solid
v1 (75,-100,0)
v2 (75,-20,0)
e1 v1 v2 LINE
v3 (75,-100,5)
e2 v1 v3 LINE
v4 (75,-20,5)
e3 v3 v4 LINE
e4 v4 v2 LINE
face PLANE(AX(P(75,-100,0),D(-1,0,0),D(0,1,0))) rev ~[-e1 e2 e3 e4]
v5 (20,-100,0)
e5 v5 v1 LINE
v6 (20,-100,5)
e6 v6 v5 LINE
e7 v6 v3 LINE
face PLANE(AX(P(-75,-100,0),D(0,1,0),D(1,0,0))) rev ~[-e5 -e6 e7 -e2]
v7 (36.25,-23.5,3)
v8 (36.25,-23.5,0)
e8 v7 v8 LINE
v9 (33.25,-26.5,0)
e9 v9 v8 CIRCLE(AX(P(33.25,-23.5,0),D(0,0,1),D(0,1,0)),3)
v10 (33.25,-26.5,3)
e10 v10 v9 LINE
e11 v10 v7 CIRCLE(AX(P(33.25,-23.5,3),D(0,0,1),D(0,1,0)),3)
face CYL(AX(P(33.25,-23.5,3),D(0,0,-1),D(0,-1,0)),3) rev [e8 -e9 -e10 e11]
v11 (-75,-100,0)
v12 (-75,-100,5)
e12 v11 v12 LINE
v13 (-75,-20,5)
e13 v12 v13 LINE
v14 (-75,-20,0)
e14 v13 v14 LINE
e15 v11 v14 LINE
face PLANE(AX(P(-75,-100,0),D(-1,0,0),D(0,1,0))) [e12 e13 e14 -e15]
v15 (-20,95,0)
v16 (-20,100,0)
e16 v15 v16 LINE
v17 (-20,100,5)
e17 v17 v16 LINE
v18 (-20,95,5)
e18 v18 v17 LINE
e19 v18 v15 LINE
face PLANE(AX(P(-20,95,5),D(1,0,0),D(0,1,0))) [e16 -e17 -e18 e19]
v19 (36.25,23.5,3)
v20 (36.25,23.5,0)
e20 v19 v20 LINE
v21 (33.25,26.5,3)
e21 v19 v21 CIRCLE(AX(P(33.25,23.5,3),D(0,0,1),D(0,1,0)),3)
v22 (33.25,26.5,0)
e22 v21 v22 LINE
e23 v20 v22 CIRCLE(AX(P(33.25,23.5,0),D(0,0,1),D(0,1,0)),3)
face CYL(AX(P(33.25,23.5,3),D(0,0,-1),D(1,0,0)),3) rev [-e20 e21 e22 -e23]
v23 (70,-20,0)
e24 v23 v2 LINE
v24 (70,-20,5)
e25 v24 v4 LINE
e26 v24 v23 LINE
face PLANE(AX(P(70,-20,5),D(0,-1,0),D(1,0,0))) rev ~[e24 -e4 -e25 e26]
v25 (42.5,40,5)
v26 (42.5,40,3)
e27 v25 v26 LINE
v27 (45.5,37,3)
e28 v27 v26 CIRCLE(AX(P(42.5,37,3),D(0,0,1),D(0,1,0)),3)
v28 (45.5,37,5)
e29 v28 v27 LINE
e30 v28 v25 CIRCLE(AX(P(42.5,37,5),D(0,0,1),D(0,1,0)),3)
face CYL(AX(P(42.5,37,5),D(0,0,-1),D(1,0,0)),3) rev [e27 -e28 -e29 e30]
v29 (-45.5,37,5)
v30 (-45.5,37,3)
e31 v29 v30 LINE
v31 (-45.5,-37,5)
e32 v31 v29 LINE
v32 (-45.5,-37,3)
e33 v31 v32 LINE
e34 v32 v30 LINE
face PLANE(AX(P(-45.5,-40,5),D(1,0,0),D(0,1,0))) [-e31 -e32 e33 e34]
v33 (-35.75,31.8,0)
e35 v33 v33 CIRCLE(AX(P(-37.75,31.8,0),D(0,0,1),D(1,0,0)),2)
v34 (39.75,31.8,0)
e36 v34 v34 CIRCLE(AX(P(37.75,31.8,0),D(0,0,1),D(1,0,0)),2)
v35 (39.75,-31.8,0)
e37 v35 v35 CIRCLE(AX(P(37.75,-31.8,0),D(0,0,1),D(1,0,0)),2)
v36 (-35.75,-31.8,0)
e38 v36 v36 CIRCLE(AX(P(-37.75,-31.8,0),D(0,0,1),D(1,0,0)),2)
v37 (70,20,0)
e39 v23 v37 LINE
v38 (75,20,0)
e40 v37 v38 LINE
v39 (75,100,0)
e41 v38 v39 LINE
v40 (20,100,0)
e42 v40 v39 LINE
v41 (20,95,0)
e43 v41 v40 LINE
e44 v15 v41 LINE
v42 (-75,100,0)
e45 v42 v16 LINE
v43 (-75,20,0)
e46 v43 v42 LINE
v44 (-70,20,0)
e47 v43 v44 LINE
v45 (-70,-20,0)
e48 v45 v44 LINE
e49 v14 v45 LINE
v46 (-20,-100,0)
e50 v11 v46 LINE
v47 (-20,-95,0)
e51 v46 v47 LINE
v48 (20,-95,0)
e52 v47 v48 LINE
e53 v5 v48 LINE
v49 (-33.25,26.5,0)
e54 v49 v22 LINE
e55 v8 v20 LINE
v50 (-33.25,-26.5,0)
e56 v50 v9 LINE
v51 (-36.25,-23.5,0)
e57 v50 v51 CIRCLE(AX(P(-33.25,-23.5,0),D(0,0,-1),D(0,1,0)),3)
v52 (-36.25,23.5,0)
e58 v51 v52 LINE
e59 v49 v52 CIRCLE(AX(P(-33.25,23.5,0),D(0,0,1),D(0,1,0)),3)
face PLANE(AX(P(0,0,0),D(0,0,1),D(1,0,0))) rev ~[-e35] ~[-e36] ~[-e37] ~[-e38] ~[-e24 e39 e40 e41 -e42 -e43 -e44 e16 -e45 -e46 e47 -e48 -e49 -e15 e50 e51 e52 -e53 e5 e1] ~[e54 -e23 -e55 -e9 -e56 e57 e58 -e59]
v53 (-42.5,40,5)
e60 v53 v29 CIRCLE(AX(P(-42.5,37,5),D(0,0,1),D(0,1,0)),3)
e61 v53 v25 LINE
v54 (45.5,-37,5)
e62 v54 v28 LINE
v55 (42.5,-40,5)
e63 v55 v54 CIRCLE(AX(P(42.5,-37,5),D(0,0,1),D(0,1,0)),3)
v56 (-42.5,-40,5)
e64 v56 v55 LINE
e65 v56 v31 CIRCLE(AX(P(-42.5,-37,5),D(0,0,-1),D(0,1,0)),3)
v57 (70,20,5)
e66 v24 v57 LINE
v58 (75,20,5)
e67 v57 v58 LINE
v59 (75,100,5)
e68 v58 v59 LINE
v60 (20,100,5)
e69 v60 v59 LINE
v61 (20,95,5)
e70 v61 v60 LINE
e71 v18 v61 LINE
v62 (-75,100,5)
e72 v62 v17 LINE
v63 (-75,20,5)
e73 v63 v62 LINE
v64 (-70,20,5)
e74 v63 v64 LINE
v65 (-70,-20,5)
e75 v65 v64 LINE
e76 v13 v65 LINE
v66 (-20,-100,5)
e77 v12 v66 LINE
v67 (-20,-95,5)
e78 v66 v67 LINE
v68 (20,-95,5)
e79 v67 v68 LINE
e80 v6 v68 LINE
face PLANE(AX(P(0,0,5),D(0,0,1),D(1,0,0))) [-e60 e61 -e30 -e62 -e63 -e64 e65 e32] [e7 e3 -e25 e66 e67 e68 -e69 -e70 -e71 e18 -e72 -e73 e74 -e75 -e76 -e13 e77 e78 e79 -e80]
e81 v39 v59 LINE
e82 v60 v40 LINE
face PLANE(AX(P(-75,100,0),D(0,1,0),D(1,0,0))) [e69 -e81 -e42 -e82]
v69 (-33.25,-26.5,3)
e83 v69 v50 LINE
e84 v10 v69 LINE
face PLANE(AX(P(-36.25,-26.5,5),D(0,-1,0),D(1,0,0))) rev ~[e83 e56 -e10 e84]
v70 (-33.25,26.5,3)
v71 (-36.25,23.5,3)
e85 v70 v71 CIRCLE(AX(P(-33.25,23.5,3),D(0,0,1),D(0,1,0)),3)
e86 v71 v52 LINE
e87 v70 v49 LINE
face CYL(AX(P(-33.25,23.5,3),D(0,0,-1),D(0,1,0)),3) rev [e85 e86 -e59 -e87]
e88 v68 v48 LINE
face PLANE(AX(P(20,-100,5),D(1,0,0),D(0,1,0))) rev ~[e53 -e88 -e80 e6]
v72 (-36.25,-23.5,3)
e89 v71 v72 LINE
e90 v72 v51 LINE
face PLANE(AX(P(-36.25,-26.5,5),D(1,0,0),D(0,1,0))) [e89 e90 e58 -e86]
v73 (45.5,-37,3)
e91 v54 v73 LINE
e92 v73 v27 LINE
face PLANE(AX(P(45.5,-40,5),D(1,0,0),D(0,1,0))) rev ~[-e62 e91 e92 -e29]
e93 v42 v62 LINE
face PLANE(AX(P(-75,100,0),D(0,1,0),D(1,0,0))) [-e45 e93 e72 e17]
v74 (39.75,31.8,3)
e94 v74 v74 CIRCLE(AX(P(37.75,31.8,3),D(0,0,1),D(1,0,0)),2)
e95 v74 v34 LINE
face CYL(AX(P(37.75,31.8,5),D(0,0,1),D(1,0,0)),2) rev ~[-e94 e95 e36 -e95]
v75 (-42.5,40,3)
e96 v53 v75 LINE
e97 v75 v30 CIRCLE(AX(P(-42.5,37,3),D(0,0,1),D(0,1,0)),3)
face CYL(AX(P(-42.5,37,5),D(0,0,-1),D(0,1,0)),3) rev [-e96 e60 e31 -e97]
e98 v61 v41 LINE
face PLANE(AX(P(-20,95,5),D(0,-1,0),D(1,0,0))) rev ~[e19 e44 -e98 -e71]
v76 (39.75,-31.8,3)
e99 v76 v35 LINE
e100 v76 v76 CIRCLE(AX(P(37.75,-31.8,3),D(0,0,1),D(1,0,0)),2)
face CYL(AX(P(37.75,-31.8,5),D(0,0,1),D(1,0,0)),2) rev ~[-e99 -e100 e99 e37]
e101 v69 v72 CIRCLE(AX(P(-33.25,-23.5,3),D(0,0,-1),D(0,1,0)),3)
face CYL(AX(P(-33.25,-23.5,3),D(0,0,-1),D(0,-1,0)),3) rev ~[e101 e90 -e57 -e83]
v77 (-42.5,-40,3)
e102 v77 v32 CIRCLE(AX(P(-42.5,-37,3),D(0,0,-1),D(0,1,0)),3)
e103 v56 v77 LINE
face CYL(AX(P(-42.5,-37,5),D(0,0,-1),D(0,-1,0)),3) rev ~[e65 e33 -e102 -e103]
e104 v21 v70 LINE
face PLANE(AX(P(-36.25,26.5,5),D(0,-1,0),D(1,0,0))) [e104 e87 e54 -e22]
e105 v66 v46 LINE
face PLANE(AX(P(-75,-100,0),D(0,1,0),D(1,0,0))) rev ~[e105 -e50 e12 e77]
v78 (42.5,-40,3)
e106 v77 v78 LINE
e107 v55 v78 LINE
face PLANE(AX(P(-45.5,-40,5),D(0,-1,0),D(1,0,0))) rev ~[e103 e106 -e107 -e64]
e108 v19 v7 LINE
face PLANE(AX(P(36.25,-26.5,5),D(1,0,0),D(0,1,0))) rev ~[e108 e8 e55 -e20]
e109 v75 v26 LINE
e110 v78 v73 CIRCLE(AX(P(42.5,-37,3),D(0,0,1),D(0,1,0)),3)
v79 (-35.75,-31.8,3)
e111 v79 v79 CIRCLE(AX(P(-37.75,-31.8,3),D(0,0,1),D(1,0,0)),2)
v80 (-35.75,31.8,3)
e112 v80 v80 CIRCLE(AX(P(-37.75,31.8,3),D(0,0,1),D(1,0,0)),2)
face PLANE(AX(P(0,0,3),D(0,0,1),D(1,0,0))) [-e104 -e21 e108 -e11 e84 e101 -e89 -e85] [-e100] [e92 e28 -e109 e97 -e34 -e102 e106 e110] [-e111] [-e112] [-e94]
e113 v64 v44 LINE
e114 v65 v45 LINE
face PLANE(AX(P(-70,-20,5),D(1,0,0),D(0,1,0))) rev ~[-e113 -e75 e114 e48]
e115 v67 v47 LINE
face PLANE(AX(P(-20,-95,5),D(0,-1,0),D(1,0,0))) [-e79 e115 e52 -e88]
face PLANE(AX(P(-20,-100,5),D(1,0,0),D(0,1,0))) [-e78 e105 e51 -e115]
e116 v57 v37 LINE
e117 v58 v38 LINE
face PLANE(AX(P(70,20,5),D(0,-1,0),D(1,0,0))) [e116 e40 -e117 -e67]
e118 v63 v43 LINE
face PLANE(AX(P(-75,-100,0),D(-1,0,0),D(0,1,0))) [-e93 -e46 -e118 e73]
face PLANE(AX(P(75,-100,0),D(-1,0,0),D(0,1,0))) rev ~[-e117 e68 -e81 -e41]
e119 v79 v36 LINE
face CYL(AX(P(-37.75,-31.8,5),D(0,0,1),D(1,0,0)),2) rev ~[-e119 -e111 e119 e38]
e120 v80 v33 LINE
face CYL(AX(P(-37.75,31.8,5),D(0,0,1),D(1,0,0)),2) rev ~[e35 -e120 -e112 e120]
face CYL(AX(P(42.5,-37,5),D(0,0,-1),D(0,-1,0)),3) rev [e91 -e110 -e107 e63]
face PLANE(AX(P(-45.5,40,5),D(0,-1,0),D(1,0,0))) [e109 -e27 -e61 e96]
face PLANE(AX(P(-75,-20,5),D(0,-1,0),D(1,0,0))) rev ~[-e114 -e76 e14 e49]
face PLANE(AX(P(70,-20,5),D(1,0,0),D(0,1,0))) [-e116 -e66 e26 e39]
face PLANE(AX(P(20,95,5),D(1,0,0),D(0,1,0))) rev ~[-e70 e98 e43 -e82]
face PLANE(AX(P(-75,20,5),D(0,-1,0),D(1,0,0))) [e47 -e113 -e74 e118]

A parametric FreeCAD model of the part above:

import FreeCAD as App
import Part
import Sketcher
Q = App.Units.Quantity


def edges_at(feature, points):
    """Names of the edges that pass closest to the given points."""
    edges = feature.Shape.Edges
    near = lambda p: min(range(len(edges)), key=lambda i: edges[i].distToShape(Part.Vertex(*p))[0])
    return sorted({f"Edge{near(p) + 1}" for p in points})

doc = App.newDocument("Part")
body = doc.addObject("PartDesign::Body", "Body")

# Sketch on XY plane
sketch1 = body.newObject("Sketcher::SketchObject", "Sketch")
sketch1.AttachmentSupport = (doc.getObject("XY_Plane"), [""])
sketch1.MapMode = "FlatFace"
sketch1.addGeometry([
    Part.LineSegment(App.Vector(-75, 100, 0), App.Vector(-75, -100, 0)),
    Part.LineSegment(App.Vector(-75, -100, 0), App.Vector(75, -100, 0)),
    Part.LineSegment(App.Vector(75, -100, 0), App.Vector(75, 100, 0)),
    Part.LineSegment(App.Vector(75, 100, 0), App.Vector(-75, 100, 0)),
], False)
sketch1.addConstraint([
    Sketcher.Constraint("Coincident", 0, 2, 1, 1),
    Sketcher.Constraint("Coincident", 1, 2, 2, 1),
    Sketcher.Constraint("Coincident", 2, 2, 3, 1),
    Sketcher.Constraint("Coincident", 3, 2, 0, 1),
    Sketcher.Constraint("Vertical", 0),
    Sketcher.Constraint("Horizontal", 1),
    Sketcher.Constraint("Vertical", 2),
    Sketcher.Constraint("Horizontal", 3),
    Sketcher.Constraint("Symmetric", 0, 2, 2, 2, -1, 1),
    Sketcher.Constraint("DistanceX", 1, 1, 1, 2, Q("150 mm")),
    Sketcher.Constraint("DistanceY", 0, 2, 0, 1, Q("200 mm")),
])
pad1 = body.newObject("PartDesign::Pad", "Pad")
pad1.Profile = sketch1
pad1.Length = 5

# Sketch on XY plane
sketch2 = body.newObject("Sketcher::SketchObject", "Sketch001")
sketch2.AttachmentSupport = (doc.getObject("XY_Plane"), [""])
sketch2.MapMode = "FlatFace"
sketch2.AttachmentOffset = App.Placement(App.Vector(0, 0, 5), App.Rotation())
sketch2.addGeometry([
    Part.Circle(App.Vector(-37.75, 31.8, 0), App.Vector(0, 0, 1), 2),  # 0
    Part.Circle(App.Vector(37.75, 31.8, 0), App.Vector(0, 0, 1), 2),  # 1
    Part.Circle(App.Vector(37.75, -31.8, 0), App.Vector(0, 0, 1), 2),  # 2
    Part.Circle(App.Vector(-37.75, -31.8, 0), App.Vector(0, 0, 1), 2),  # 3
    Part.LineSegment(App.Vector(-20, 100, 0), App.Vector(-20, 95, 0)),  # 4
    Part.LineSegment(App.Vector(-20, 95, 0), App.Vector(20, 95, 0)),  # 5
    Part.LineSegment(App.Vector(20, 95, 0), App.Vector(20, 100, 0)),  # 6
    Part.LineSegment(App.Vector(20, 100, 0), App.Vector(-20, 100, 0)),  # 7
    Part.LineSegment(App.Vector(-20, -95, 0), App.Vector(-20, -100, 0)),  # 8
    Part.LineSegment(App.Vector(-20, -100, 0), App.Vector(20, -100, 0)),  # 9
    Part.LineSegment(App.Vector(20, -100, 0), App.Vector(20, -95, 0)),  # 10
    Part.LineSegment(App.Vector(20, -95, 0), App.Vector(-20, -95, 0)),  # 11
    Part.LineSegment(App.Vector(-75, 20, 0), App.Vector(-75, -20, 0)),  # 12
    Part.LineSegment(App.Vector(-75, -20, 0), App.Vector(-70, -20, 0)),  # 13
    Part.LineSegment(App.Vector(-70, -20, 0), App.Vector(-70, 20, 0)),  # 14
    Part.LineSegment(App.Vector(-70, 20, 0), App.Vector(-75, 20, 0)),  # 15
    Part.LineSegment(App.Vector(70, 20, 0), App.Vector(70, -20, 0)),  # 16
    Part.LineSegment(App.Vector(70, -20, 0), App.Vector(75, -20, 0)),  # 17
    Part.LineSegment(App.Vector(75, -20, 0), App.Vector(75, 20, 0)),  # 18
    Part.LineSegment(App.Vector(75, 20, 0), App.Vector(70, 20, 0)),  # 19
    Part.LineSegment(App.Vector(-36.25, 26.5, 0), App.Vector(-36.25, -26.5, 0)),  # 20
    Part.LineSegment(App.Vector(-36.25, -26.5, 0), App.Vector(36.25, -26.5, 0)),  # 21
    Part.LineSegment(App.Vector(36.25, -26.5, 0), App.Vector(36.25, 26.5, 0)),  # 22
    Part.LineSegment(App.Vector(36.25, 26.5, 0), App.Vector(-36.25, 26.5, 0)),  # 23
], False)
sketch2.addConstraint([
    Sketcher.Constraint("Coincident", 4, 2, 5, 1),
    Sketcher.Constraint("Coincident", 5, 2, 6, 1),
    Sketcher.Constraint("Coincident", 6, 2, 7, 1),
    Sketcher.Constraint("Coincident", 7, 2, 4, 1),
    Sketcher.Constraint("Coincident", 8, 2, 9, 1),
    Sketcher.Constraint("Coincident", 9, 2, 10, 1),
    Sketcher.Constraint("Coincident", 10, 2, 11, 1),
    Sketcher.Constraint("Coincident", 11, 2, 8, 1),
    Sketcher.Constraint("Coincident", 12, 2, 13, 1),
    Sketcher.Constraint("Coincident", 13, 2, 14, 1),
    Sketcher.Constraint("Coincident", 14, 2, 15, 1),
    Sketcher.Constraint("Coincident", 15, 2, 12, 1),
    Sketcher.Constraint("Coincident", 16, 2, 17, 1),
    Sketcher.Constraint("Coincident", 17, 2, 18, 1),
    Sketcher.Constraint("Coincident", 18, 2, 19, 1),
    Sketcher.Constraint("Coincident", 19, 2, 16, 1),
    Sketcher.Constraint("Coincident", 20, 2, 21, 1),
    Sketcher.Constraint("Coincident", 21, 2, 22, 1),
    Sketcher.Constraint("Coincident", 22, 2, 23, 1),
    Sketcher.Constraint("Coincident", 23, 2, 20, 1),
    Sketcher.Constraint("Vertical", 4),
    Sketcher.Constraint("Horizontal", 5),
    Sketcher.Constraint("Vertical", 6),
    Sketcher.Constraint("Horizontal", 7),
    Sketcher.Constraint("Vertical", 8),
    Sketcher.Constraint("Horizontal", 9),
    Sketcher.Constraint("Vertical", 10),
    Sketcher.Constraint("Horizontal", 11),
    Sketcher.Constraint("Vertical", 12),
    Sketcher.Constraint("Horizontal", 13),
    Sketcher.Constraint("Vertical", 14),
    Sketcher.Constraint("Horizontal", 15),
    Sketcher.Constraint("Vertical", 16),
    Sketcher.Constraint("Horizontal", 17),
    Sketcher.Constraint("Vertical", 18),
    Sketcher.Constraint("Horizontal", 19),
    Sketcher.Constraint("Vertical", 20),
    Sketcher.Constraint("Horizontal", 21),
    Sketcher.Constraint("Vertical", 22),
    Sketcher.Constraint("Horizontal", 23),
    Sketcher.Constraint("Equal", 0, 1),
    Sketcher.Constraint("Equal", 1, 2),
    Sketcher.Constraint("Equal", 2, 3),
    Sketcher.Constraint("Symmetric", 0, 3, 2, 3, -1, 1),
    Sketcher.Constraint("Symmetric", 1, 3, 3, 3, -1, 1),
    Sketcher.Constraint("Symmetric", 6, 2, 8, 2, -1, 1),
    Sketcher.Constraint("Symmetric", 4, 2, 10, 2, -1, 1),
    Sketcher.Constraint("Symmetric", 14, 2, 16, 2, -1, 1),
    Sketcher.Constraint("Symmetric", 12, 2, 18, 2, -1, 1),
    Sketcher.Constraint("Symmetric", 20, 2, 22, 2, -1, 1),
    Sketcher.Constraint("Symmetric", 0, 3, 1, 3, -2),
    Sketcher.Constraint("Horizontal", 13, 2, 16, 2),
    Sketcher.Constraint("Vertical", 7, 2, 8, 2),
    Sketcher.Constraint("Equal", 19, 4),
    Sketcher.Constraint("Equal", 11, 12),
    Sketcher.Constraint("Diameter", 0, Q("4 mm")),
    Sketcher.Constraint("DistanceX", 5, 1, 5, 2, Q("40 mm")),
    Sketcher.Constraint("DistanceX", 13, 1, 13, 2, Q("5 mm")),
    Sketcher.Constraint("DistanceY", 20, 2, 20, 1, Q("53 mm")),
    Sketcher.Constraint("DistanceX", 21, 1, 21, 2, Q("72.5 mm")),
    Sketcher.Constraint("DistanceY", -1, 1, 4, 2, Q("95 mm")),
    Sketcher.Constraint("DistanceX", 12, 2, -1, 1, Q("75 mm")),
    Sketcher.Constraint("DistanceY", -1, 1, 0, 3, Q("31.8 mm")),
    Sketcher.Constraint("DistanceX", 0, 3, 1, 3, Q("75.5 mm")),
])
pocket1 = body.newObject("PartDesign::Pocket", "Pocket")
pocket1.Profile = sketch2
pocket1.Length = 5

# Sketch on XY plane
sketch3 = body.newObject("Sketcher::SketchObject", "Sketch002")
sketch3.AttachmentSupport = (doc.getObject("XY_Plane"), [""])
sketch3.MapMode = "FlatFace"
sketch3.AttachmentOffset = App.Placement(App.Vector(0, 0, 5), App.Rotation())
sketch3.addGeometry([
    Part.LineSegment(App.Vector(-45.5, 40, 0), App.Vector(-45.5, -40, 0)),
    Part.LineSegment(App.Vector(-45.5, -40, 0), App.Vector(45.5, -40, 0)),
    Part.LineSegment(App.Vector(45.5, -40, 0), App.Vector(45.5, 40, 0)),
    Part.LineSegment(App.Vector(45.5, 40, 0), App.Vector(-45.5, 40, 0)),
], False)
sketch3.addConstraint([
    Sketcher.Constraint("Coincident", 0, 2, 1, 1),
    Sketcher.Constraint("Coincident", 1, 2, 2, 1),
    Sketcher.Constraint("Coincident", 2, 2, 3, 1),
    Sketcher.Constraint("Coincident", 3, 2, 0, 1),
    Sketcher.Constraint("Vertical", 0),
    Sketcher.Constraint("Horizontal", 1),
    Sketcher.Constraint("Vertical", 2),
    Sketcher.Constraint("Horizontal", 3),
    Sketcher.Constraint("Symmetric", 0, 2, 2, 2, -1, 1),
    Sketcher.Constraint("DistanceX", 1, 1, 1, 2, Q("91 mm")),
    Sketcher.Constraint("DistanceY", 0, 2, 0, 1, Q("80 mm")),
])
pocket2 = body.newObject("PartDesign::Pocket", "Pocket001")
pocket2.Profile = sketch3
pocket2.Length = 2
doc.recompute()

fillet = body.newObject("PartDesign::Fillet", "Fillet")
fillet.Base = (pocket2, edges_at(pocket2, [
    (-45.5, -40, 4),
    (-45.5, 40, 4),
    (45.5, 40, 4),
    (45.5, -40, 4),
    (36.25, 26.5, 1.5),
    (36.25, -26.5, 1.5),
    (-36.25, -26.5, 1.5),
    (-36.25, 26.5, 1.5),
]))
fillet.Radius = 3

doc.recompute()
